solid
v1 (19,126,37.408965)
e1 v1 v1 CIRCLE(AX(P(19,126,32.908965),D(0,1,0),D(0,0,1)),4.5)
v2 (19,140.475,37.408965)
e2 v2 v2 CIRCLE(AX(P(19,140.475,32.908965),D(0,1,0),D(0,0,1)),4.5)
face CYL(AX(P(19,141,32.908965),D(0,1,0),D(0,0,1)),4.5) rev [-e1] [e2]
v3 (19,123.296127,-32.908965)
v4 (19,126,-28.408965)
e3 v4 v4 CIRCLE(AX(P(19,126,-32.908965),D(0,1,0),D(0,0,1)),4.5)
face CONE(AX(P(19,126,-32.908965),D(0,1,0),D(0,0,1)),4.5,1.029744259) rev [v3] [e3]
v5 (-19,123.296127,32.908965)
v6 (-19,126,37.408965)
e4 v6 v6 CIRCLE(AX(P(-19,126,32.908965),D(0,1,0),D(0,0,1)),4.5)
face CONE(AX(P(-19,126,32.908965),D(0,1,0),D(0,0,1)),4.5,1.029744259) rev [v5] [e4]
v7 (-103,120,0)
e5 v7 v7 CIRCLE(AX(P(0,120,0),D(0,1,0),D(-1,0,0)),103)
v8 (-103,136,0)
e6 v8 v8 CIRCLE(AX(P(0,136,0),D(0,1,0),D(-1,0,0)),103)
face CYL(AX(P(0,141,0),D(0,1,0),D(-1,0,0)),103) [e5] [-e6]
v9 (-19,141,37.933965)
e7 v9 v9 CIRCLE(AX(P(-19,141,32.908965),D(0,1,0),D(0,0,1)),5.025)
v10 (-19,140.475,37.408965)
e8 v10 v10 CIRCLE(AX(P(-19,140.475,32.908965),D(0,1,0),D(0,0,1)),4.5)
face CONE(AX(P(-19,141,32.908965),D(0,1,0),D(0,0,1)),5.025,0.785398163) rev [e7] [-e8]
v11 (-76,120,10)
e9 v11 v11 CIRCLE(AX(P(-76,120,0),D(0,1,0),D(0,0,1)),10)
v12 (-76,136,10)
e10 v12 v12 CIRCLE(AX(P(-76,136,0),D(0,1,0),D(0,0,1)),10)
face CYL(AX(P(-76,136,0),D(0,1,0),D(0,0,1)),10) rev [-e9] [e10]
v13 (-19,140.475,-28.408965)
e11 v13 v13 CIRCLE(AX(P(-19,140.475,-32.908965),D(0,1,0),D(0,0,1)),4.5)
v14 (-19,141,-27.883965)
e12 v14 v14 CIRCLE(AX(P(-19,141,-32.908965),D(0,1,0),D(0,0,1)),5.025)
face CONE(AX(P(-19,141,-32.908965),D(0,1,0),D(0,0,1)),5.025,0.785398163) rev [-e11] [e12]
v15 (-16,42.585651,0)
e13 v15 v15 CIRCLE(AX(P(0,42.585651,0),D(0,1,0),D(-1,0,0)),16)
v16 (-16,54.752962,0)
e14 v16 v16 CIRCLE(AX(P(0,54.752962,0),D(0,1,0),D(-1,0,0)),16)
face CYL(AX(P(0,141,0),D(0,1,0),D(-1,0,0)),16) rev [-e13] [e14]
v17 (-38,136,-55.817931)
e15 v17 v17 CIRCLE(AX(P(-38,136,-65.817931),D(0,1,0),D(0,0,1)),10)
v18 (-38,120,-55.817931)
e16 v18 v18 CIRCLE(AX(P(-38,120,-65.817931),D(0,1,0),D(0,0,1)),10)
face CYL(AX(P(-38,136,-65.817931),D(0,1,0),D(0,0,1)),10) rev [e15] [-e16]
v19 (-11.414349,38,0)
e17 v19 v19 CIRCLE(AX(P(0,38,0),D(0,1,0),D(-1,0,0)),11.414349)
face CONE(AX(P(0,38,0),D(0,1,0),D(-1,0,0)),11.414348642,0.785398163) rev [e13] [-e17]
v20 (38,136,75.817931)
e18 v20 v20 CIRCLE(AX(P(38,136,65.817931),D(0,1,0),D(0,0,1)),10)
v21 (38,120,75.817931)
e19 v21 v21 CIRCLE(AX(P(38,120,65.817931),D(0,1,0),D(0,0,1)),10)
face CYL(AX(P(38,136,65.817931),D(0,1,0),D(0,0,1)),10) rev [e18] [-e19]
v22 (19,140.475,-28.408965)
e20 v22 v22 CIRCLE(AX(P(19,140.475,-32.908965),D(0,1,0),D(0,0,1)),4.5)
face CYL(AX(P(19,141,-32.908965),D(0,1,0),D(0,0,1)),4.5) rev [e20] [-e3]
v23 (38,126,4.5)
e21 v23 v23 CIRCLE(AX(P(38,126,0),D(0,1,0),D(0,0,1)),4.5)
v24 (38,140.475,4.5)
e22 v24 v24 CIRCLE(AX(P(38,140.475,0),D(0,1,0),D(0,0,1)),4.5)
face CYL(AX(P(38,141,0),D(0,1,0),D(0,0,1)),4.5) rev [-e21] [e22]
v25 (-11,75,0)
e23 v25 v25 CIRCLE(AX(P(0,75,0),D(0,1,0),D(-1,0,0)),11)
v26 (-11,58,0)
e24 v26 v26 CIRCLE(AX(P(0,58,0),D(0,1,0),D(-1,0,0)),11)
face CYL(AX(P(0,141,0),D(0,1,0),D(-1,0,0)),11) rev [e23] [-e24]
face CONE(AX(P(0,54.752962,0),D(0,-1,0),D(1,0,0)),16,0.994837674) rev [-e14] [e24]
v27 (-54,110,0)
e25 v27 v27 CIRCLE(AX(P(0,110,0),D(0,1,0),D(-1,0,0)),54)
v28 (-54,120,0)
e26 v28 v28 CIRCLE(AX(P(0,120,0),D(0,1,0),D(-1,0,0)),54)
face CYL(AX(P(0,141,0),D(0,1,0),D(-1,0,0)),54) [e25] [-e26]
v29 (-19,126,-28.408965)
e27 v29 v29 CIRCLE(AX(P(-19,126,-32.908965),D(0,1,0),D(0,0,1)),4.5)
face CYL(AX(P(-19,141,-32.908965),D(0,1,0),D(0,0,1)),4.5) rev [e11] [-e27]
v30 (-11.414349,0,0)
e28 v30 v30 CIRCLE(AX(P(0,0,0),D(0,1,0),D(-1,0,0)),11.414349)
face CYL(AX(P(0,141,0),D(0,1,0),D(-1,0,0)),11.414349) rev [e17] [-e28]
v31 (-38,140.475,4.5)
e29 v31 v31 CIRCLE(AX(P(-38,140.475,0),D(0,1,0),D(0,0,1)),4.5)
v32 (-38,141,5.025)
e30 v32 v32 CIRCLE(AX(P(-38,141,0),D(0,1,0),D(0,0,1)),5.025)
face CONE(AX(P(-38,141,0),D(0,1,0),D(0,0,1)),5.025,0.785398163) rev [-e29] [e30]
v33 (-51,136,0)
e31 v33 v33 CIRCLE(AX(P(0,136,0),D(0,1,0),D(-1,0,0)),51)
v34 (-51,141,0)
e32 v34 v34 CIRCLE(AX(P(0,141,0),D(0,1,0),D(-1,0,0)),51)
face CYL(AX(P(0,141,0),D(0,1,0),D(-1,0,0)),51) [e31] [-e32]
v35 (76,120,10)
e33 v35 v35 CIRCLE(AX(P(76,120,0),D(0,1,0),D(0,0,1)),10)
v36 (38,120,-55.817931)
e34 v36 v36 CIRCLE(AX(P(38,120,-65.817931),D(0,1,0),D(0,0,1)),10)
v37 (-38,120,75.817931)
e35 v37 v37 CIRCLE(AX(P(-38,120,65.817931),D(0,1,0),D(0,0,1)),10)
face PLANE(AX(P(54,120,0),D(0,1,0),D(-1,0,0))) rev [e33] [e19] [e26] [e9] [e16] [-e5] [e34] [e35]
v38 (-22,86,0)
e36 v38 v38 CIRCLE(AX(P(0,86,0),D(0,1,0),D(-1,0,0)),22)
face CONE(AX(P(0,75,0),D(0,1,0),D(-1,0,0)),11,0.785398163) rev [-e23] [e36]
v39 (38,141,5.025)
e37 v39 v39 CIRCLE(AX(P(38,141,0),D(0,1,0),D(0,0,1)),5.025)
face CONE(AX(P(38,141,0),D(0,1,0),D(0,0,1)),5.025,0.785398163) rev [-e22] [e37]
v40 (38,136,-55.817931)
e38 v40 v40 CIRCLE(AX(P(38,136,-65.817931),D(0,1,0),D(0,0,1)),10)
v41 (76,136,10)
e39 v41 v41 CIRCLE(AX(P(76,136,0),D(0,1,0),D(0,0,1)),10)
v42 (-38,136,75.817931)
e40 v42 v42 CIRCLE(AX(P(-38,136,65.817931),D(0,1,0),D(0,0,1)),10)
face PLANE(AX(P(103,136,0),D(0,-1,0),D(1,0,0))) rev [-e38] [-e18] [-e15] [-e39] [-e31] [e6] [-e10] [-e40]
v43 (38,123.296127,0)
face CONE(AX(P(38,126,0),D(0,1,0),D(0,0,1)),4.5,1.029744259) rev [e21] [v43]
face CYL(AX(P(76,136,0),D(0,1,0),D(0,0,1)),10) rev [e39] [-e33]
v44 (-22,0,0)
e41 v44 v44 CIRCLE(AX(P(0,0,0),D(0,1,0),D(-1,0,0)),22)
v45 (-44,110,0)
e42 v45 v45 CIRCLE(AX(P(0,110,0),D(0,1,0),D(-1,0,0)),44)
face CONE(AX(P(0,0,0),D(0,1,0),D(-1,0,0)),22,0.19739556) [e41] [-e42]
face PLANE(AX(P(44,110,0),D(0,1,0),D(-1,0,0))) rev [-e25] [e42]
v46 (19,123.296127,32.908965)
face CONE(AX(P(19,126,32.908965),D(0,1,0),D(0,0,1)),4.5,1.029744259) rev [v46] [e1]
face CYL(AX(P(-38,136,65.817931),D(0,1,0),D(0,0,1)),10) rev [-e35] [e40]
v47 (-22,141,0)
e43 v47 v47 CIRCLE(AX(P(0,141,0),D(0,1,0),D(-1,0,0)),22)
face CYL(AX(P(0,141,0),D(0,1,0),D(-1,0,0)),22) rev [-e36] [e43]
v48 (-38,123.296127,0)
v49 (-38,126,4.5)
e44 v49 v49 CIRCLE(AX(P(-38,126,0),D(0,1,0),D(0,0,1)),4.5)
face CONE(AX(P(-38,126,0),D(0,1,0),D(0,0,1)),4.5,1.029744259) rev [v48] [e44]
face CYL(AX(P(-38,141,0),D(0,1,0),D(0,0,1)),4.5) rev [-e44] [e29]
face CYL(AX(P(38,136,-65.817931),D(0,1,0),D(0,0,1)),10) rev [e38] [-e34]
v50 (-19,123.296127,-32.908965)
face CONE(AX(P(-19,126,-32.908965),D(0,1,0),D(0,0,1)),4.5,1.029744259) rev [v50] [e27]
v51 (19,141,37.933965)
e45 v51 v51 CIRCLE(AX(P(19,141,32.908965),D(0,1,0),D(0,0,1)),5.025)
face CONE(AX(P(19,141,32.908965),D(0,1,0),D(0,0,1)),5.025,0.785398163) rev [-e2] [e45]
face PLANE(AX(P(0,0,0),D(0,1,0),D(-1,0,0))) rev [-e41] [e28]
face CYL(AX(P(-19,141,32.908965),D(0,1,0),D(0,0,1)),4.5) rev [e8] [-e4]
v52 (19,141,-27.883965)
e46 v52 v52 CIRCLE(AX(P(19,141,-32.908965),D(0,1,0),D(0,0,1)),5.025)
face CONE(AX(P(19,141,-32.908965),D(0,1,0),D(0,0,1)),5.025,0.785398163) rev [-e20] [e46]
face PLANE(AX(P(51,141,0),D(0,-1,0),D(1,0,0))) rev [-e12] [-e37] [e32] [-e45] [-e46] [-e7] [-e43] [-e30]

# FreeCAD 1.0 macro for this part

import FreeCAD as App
import Part
import Sketcher
Q = App.Units.Quantity


def add_polygon(sketch, points):
    """Adds a closed chain of lines whose ends are joined by coincident constraints."""
    first, n = sketch.GeometryCount, len(points)
    for a, b in zip(points, points[1:] + points[:1]):
        sketch.addGeometry(Part.LineSegment(App.Vector(*a, 0), App.Vector(*b, 0)), False)
    for i in range(n):
        sketch.addConstraint(Sketcher.Constraint("Coincident", first + i, 2, first + (i + 1) % n, 1))

doc = App.newDocument("Part")
body = doc.addObject("PartDesign::Body", "Body")

sketch1 = body.newObject("Sketcher::SketchObject", "Sketch")
sketch1.AttachmentSupport = (doc.getObject("XY_Plane"), [""])
sketch1.MapMode = "FlatFace"
add_polygon(sketch1, [(22, 0), (44, 110), (54, 110), (54, 120), (103, 120), (103, 136), (51, 136), (51, 141), (0, 141), (0, 0)])
sketch1.addConstraint([
    Sketcher.Constraint("Horizontal", 1),
    Sketcher.Constraint("Vertical", 2),
    Sketcher.Constraint("Horizontal", 3),
    Sketcher.Constraint("Vertical", 4),
    Sketcher.Constraint("Horizontal", 5),
    Sketcher.Constraint("Vertical", 6),
    Sketcher.Constraint("Horizontal", 7),
    Sketcher.Constraint("Vertical", 8),
    Sketcher.Constraint("Horizontal", 9),
    Sketcher.Constraint("Coincident", 8, 2, -1, 1),
    Sketcher.Constraint("Equal", 1, 2),
    Sketcher.Constraint("DistanceX", 1, 1, 1, 2, 10.0),
    Sketcher.Constraint("DistanceX", 3, 1, 3, 2, 49.0),
    Sketcher.Constraint("DistanceX", 5, 2, 5, 1, 52.0),
    Sketcher.Constraint("DistanceX", 7, 2, 7, 1, 51.0),
    Sketcher.Constraint("DistanceX", 9, 1, 9, 2, 22.0),
    Sketcher.Constraint("DistanceY", 4, 1, 4, 2, 16.0),
    Sketcher.Constraint("DistanceY", 6, 1, 6, 2, 5.0),
    Sketcher.Constraint("DistanceY", 8, 2, 8, 1, 141.0),
])
revolution = body.newObject("PartDesign::Revolution", "Revolution")
revolution.Profile = sketch1
revolution.ReferenceAxis = (sketch1, ["V_Axis"])
revolution.Angle = 360

sketch2 = body.newObject("Sketcher::SketchObject", "Sketch001")
sketch2.AttachmentSupport = (doc.getObject("XY_Plane"), [""])
sketch2.MapMode = "FlatFace"
add_polygon(sketch2, [(0, 0), (11, 0), (11, 38), (16, 43), (16, 55), (11, 58), (11, 75), (22, 86), (22, 141), (0, 141)])
sketch2.addConstraint([
    Sketcher.Constraint("Horizontal", 0),
    Sketcher.Constraint("Vertical", 1),
    Sketcher.Constraint("Vertical", 3),
    Sketcher.Constraint("Vertical", 5),
    Sketcher.Constraint("Vertical", 7),
    Sketcher.Constraint("Horizontal", 8),
    Sketcher.Constraint("Vertical", 9),
    Sketcher.Constraint("Coincident", 9, 2, -1, 1),
    Sketcher.Constraint("Parallel", 2, 6),
    Sketcher.Constraint("DistanceX", 8, 2, 8, 1, 22.0),
    Sketcher.Constraint("DistanceY", 1, 1, 1, 2, 38.0),
    Sketcher.Constraint("DistanceY", 5, 1, 5, 2, 17.0),
    Sketcher.Constraint("DistanceY", 7, 1, 7, 2, 55.0),
    Sketcher.Constraint("DistanceY", 9, 2, 9, 1, 141.0),
    Sketcher.Constraint("Angle", 2, Q("45 deg")),
    Sketcher.Constraint("Angle", 4, Q("147 deg")),
    Sketcher.Constraint("DistanceX", -1, 1, 2, 2, 16.0),
    Sketcher.Constraint("DistanceX", -1, 1, 4, 2, 11.0),
    Sketcher.Constraint("DistanceX", 0, 1, 0, 2, 11.414349),
])
groove = body.newObject("PartDesign::Groove", "Groove")
groove.Profile = sketch2
groove.ReferenceAxis = (sketch2, ["V_Axis"])
groove.Angle = 360

sketch3 = body.newObject("Sketcher::SketchObject", "Sketch002")
sketch3.AttachmentSupport = (doc.getObject("XZ_Plane"), [""])
sketch3.MapMode = "FlatFace"
sketch3.AttachmentOffset = App.Placement(App.Vector(0, 0, -136), App.Rotation())
sketch3.addGeometry(Part.Circle(App.Vector(76, 0, 0), App.Vector(0, 0, 1), 10), False)
sketch3.addConstraint([
    Sketcher.Constraint("PointOnObject", 0, 3, -1),
    Sketcher.Constraint("Diameter", 0, 20.0),
    Sketcher.Constraint("DistanceX", -1, 1, 0, 3, 76.0),
])
doc.recompute()
hole = body.newObject("PartDesign::Hole", "Hole")
hole.Profile = sketch3
hole.ThreadType = "None"
hole.Diameter = 20
hole.DepthType = "ThroughAll"
hole.Reversed = True
doc.recompute()

polarpattern = body.newObject("PartDesign::PolarPattern", "PolarPattern")
polarpattern.Originals = [hole]
polarpattern.Axis = (doc.getObject("Y_Axis"), [""])
polarpattern.Angle = 360
polarpattern.Occurrences = 6
body.Tip = polarpattern

sketch4 = body.newObject("Sketcher::SketchObject", "Sketch003")
sketch4.AttachmentSupport = (doc.getObject("YZ_Plane"), [""])
sketch4.MapMode = "FlatFace"
sketch4.AttachmentOffset = App.Placement(App.Vector(0, 0, 38), App.Rotation())
add_polygon(sketch4, [(123.3, 0), (141, 0), (141, 5), (140.5, 4.5), (126, 4.5)])
sketch4.addConstraint([
    Sketcher.Constraint("Horizontal", 0),
    Sketcher.Constraint("Vertical", 1),
    Sketcher.Constraint("Horizontal", 3),
    Sketcher.Constraint("PointOnObject", 0, 2, -1),
    Sketcher.Constraint("Angle", 2, Q("-135 deg")),
    Sketcher.Constraint("Angle", 4, Q("-121 deg")),
    Sketcher.Constraint("DistanceX", -1, 1, 0, 2, 141.0),
    Sketcher.Constraint("DistanceX", -1, 1, 3, 2, 126.0),
    Sketcher.Constraint("DistanceY", -1, 1, 2, 2, 4.5),
    Sketcher.Constraint("DistanceX", 3, 2, 3, 1, 14.475),
])
groove2 = body.newObject("PartDesign::Groove", "Groove001")
groove2.Profile = sketch4
groove2.ReferenceAxis = (sketch4, ["H_Axis"])
groove2.Angle = 360
doc.recompute()

polarpattern2 = body.newObject("PartDesign::PolarPattern", "PolarPattern001")
polarpattern2.Originals = [groove2]
polarpattern2.Axis = (doc.getObject("Y_Axis"), [""])
polarpattern2.Angle = 360
polarpattern2.Occurrences = 6
body.Tip = polarpattern2

doc.recompute()
